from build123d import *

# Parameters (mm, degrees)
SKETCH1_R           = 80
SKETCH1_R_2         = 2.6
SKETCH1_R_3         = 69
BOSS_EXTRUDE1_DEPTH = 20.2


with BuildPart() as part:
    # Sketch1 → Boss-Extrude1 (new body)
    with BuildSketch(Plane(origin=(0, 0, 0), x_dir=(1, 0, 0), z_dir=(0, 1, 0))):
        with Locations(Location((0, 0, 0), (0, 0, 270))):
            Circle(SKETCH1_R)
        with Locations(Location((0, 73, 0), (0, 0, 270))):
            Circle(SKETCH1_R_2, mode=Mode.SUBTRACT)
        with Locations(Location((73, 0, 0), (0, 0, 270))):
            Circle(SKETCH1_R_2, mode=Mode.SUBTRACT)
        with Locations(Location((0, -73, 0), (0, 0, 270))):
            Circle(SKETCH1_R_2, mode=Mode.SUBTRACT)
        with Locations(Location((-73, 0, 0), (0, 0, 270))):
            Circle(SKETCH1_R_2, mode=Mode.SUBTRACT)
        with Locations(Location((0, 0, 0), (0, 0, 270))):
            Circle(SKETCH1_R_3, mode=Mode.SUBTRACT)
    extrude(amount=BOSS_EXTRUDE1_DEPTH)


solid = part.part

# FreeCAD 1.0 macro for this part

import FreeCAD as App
import Part
import Sketcher

doc = App.newDocument("Part")
body = doc.addObject("PartDesign::Body", "Body")

# Sketch on XZ plane
sketch1 = body.newObject("Sketcher::SketchObject", "Sketch")
sketch1.AttachmentSupport = (doc.getObject("XZ_Plane"), [""])
sketch1.MapMode = "FlatFace"
sketch1.addGeometry([
    Part.Circle(App.Vector(0, 0, 0), App.Vector(0, 0, 1), 80),  # 0
    Part.Circle(App.Vector(0, -73, 0), App.Vector(0, 0, 1), 2.6),  # 1
    Part.Circle(App.Vector(-73, 0, 0), App.Vector(0, 0, 1), 2.6),  # 2
    Part.Circle(App.Vector(73, 0, 0), App.Vector(0, 0, 1), 2.6),  # 3
    Part.Circle(App.Vector(0, 0, 0), App.Vector(0, 0, 1), 69),  # 4
    Part.Circle(App.Vector(0, 73, 0), App.Vector(0, 0, 1), 2.6),  # 5
], False)
sketch1.addConstraint([
    Sketcher.Constraint("Coincident", 0, 3, -1, 1),
    Sketcher.Constraint("Coincident", 4, 3, -1, 1),
    Sketcher.Constraint("Equal", 1, 2),
    Sketcher.Constraint("Equal", 2, 3),
    Sketcher.Constraint("Equal", 3, 5),
    Sketcher.Constraint("Symmetric", 2, 3, 3, 3, -1, 1),
    Sketcher.Constraint("Symmetric", 1, 3, 5, 3, -1, 1),
    Sketcher.Constraint("PointOnObject", 1, 3, -2),
    Sketcher.Constraint("PointOnObject", 2, 3, -1),
    Sketcher.Constraint("Diameter", 0, 160.0),
    Sketcher.Constraint("Diameter", 4, 138.0),
    Sketcher.Constraint("Diameter", 1, 5.2),
    Sketcher.Constraint("DistanceY", 1, 3, -1, 1, 73.0),
    Sketcher.Constraint("DistanceX", 2, 3, -1, 1, 73.0),
])
pad1 = body.newObject("PartDesign::Pad", "Pad")
pad1.Profile = sketch1
pad1.Length = 20.2
pad1.Reversed = True

doc.recompute()
